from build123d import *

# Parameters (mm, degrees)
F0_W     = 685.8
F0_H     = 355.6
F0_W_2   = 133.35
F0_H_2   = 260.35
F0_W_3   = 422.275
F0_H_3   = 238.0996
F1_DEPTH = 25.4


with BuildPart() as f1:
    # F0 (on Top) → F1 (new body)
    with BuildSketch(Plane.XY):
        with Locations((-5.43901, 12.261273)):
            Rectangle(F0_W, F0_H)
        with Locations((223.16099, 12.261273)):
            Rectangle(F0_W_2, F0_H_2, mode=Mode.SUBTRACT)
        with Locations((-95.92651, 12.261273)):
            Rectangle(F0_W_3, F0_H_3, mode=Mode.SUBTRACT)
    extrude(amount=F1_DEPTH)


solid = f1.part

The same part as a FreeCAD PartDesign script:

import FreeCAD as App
import Part
import Sketcher
from FreeCAD import Vector
Q = App.Units.Quantity

doc = App.newDocument("Part")
params = doc.addObject("Spreadsheet::Sheet", "Params")
for row, (alias, value) in enumerate([
    ("sketch1_width", "27 in"),
    ("sketch1_height", "14 in"),
    ("sketch1_width2", "5.25 in"),
    ("sketch1_height2", "10.25 in"),
    ("sketch1_width3", "16.625 in"),
    ("pad1_length", "1 in"),
], start=1):
    params.set(f"A{row}", alias)
    params.set(f"B{row}", "=" + value)
    params.setAlias(f"B{row}", alias)

body = doc.addObject("PartDesign::Body", "Body")

# Sketch on XY plane
sketch1 = doc.addObject("Sketcher::SketchObject", "Sketch")
body.addObject(sketch1)
sketch1.AttachmentSupport = (doc.XY_Plane, [""])
sketch1.MapMode = "FlatFace"
sketch1.addGeometry(Part.LineSegment(Vector(-348, 190, 0), Vector(-348, -166, 0)), False)
sketch1.addGeometry(Part.LineSegment(Vector(-348, -166, 0), Vector(337, -166, 0)), False)
sketch1.addGeometry(Part.LineSegment(Vector(337, -166, 0), Vector(337, 190, 0)), False)
sketch1.addGeometry(Part.LineSegment(Vector(337, 190, 0), Vector(-348, 190, 0)), False)
sketch1.addGeometry(Part.LineSegment(Vector(115, -107, 0), Vector(-307, -107, 0)), False)
sketch1.addGeometry(Part.LineSegment(Vector(-307, -107, 0), Vector(-307, 131, 0)), False)
sketch1.addGeometry(Part.LineSegment(Vector(-307, 131, 0), Vector(115, 131, 0)), False)
sketch1.addGeometry(Part.LineSegment(Vector(115, 131, 0), Vector(115, -107, 0)), False)
sketch1.addGeometry(Part.LineSegment(Vector(290, -118, 0), Vector(156, -118, 0)), False)
sketch1.addGeometry(Part.LineSegment(Vector(156, -118, 0), Vector(156, 142, 0)), False)
sketch1.addGeometry(Part.LineSegment(Vector(156, 142, 0), Vector(290, 142, 0)), False)
sketch1.addGeometry(Part.LineSegment(Vector(290, 142, 0), Vector(290, -118, 0)), False)
sketch1.addConstraint(Sketcher.Constraint("Coincident", 0, 2, 1, 1))
sketch1.addConstraint(Sketcher.Constraint("Coincident", 1, 2, 2, 1))
sketch1.addConstraint(Sketcher.Constraint("Coincident", 2, 2, 3, 1))
sketch1.addConstraint(Sketcher.Constraint("Coincident", 3, 2, 0, 1))
sketch1.addConstraint(Sketcher.Constraint("Coincident", 4, 2, 5, 1))
sketch1.addConstraint(Sketcher.Constraint("Coincident", 5, 2, 6, 1))
sketch1.addConstraint(Sketcher.Constraint("Coincident", 6, 2, 7, 1))
sketch1.addConstraint(Sketcher.Constraint("Coincident", 7, 2, 4, 1))
sketch1.addConstraint(Sketcher.Constraint("Coincident", 8, 2, 9, 1))
sketch1.addConstraint(Sketcher.Constraint("Coincident", 9, 2, 10, 1))
sketch1.addConstraint(Sketcher.Constraint("Coincident", 10, 2, 11, 1))
sketch1.addConstraint(Sketcher.Constraint("Coincident", 11, 2, 8, 1))
sketch1.addConstraint(Sketcher.Constraint("Vertical", 0))
sketch1.addConstraint(Sketcher.Constraint("Horizontal", 1))
sketch1.addConstraint(Sketcher.Constraint("Vertical", 2))
sketch1.addConstraint(Sketcher.Constraint("Horizontal", 3))
sketch1.addConstraint(Sketcher.Constraint("Horizontal", 4))
sketch1.addConstraint(Sketcher.Constraint("Vertical", 5))
sketch1.addConstraint(Sketcher.Constraint("Horizontal", 6))
sketch1.addConstraint(Sketcher.Constraint("Vertical", 7))
sketch1.addConstraint(Sketcher.Constraint("Horizontal", 8))
sketch1.addConstraint(Sketcher.Constraint("Vertical", 9))
sketch1.addConstraint(Sketcher.Constraint("Horizontal", 10))
sketch1.addConstraint(Sketcher.Constraint("Vertical", 11))
sketch1.addConstraint(Sketcher.Constraint("DistanceX", 1, 1, 1, 2, Q("27 in")))
sketch1.addConstraint(Sketcher.Constraint("DistanceY", 0, 2, 0, 1, Q("14 in")))
sketch1.addConstraint(Sketcher.Constraint("DistanceX", 8, 2, 8, 1, Q("5.25 in")))
sketch1.addConstraint(Sketcher.Constraint("DistanceY", 9, 1, 9, 2, Q("10.25 in")))
sketch1.addConstraint(Sketcher.Constraint("DistanceX", 4, 2, 4, 1, Q("16.625 in")))
sketch1.addConstraint(Sketcher.Constraint("DistanceY", 5, 1, 5, 2, Q("9.374 in")))
sketch1.addConstraint(Sketcher.Constraint("DistanceX", 6, 2, 2, 2, Q("8.75 in")))
sketch1.addConstraint(Sketcher.Constraint("DistanceX", 4, 2, 8, 2, Q("18.25 in")))
sketch1.addConstraint(Sketcher.Constraint("DistanceY", 0, 2, 4, 2, Q("2.313 in")))
sketch1.addConstraint(Sketcher.Constraint("DistanceY", 8, 2, 7, 2, Q("0.438 in")))
sketch1.addConstraint(Sketcher.Constraint("DistanceX", 0, 2, -1, 1, Q("348.33901 mm")))
sketch1.addConstraint(Sketcher.Constraint("DistanceY", 0, 2, -1, 1, Q("165.538727 mm")))
sketch1.setExpression("Constraints[24]", "Params.sketch1_width")
sketch1.setExpression("Constraints[25]", "Params.sketch1_height")
sketch1.setExpression("Constraints[26]", "Params.sketch1_width2")
sketch1.setExpression("Constraints[27]", "Params.sketch1_height2")
sketch1.setExpression("Constraints[28]", "Params.sketch1_width3")
pad1 = doc.addObject("PartDesign::Pad", "Pad")
body.addObject(pad1)
pad1.Profile = sketch1
pad1.setExpression("Length", "Params.pad1_length")

doc.recompute()
